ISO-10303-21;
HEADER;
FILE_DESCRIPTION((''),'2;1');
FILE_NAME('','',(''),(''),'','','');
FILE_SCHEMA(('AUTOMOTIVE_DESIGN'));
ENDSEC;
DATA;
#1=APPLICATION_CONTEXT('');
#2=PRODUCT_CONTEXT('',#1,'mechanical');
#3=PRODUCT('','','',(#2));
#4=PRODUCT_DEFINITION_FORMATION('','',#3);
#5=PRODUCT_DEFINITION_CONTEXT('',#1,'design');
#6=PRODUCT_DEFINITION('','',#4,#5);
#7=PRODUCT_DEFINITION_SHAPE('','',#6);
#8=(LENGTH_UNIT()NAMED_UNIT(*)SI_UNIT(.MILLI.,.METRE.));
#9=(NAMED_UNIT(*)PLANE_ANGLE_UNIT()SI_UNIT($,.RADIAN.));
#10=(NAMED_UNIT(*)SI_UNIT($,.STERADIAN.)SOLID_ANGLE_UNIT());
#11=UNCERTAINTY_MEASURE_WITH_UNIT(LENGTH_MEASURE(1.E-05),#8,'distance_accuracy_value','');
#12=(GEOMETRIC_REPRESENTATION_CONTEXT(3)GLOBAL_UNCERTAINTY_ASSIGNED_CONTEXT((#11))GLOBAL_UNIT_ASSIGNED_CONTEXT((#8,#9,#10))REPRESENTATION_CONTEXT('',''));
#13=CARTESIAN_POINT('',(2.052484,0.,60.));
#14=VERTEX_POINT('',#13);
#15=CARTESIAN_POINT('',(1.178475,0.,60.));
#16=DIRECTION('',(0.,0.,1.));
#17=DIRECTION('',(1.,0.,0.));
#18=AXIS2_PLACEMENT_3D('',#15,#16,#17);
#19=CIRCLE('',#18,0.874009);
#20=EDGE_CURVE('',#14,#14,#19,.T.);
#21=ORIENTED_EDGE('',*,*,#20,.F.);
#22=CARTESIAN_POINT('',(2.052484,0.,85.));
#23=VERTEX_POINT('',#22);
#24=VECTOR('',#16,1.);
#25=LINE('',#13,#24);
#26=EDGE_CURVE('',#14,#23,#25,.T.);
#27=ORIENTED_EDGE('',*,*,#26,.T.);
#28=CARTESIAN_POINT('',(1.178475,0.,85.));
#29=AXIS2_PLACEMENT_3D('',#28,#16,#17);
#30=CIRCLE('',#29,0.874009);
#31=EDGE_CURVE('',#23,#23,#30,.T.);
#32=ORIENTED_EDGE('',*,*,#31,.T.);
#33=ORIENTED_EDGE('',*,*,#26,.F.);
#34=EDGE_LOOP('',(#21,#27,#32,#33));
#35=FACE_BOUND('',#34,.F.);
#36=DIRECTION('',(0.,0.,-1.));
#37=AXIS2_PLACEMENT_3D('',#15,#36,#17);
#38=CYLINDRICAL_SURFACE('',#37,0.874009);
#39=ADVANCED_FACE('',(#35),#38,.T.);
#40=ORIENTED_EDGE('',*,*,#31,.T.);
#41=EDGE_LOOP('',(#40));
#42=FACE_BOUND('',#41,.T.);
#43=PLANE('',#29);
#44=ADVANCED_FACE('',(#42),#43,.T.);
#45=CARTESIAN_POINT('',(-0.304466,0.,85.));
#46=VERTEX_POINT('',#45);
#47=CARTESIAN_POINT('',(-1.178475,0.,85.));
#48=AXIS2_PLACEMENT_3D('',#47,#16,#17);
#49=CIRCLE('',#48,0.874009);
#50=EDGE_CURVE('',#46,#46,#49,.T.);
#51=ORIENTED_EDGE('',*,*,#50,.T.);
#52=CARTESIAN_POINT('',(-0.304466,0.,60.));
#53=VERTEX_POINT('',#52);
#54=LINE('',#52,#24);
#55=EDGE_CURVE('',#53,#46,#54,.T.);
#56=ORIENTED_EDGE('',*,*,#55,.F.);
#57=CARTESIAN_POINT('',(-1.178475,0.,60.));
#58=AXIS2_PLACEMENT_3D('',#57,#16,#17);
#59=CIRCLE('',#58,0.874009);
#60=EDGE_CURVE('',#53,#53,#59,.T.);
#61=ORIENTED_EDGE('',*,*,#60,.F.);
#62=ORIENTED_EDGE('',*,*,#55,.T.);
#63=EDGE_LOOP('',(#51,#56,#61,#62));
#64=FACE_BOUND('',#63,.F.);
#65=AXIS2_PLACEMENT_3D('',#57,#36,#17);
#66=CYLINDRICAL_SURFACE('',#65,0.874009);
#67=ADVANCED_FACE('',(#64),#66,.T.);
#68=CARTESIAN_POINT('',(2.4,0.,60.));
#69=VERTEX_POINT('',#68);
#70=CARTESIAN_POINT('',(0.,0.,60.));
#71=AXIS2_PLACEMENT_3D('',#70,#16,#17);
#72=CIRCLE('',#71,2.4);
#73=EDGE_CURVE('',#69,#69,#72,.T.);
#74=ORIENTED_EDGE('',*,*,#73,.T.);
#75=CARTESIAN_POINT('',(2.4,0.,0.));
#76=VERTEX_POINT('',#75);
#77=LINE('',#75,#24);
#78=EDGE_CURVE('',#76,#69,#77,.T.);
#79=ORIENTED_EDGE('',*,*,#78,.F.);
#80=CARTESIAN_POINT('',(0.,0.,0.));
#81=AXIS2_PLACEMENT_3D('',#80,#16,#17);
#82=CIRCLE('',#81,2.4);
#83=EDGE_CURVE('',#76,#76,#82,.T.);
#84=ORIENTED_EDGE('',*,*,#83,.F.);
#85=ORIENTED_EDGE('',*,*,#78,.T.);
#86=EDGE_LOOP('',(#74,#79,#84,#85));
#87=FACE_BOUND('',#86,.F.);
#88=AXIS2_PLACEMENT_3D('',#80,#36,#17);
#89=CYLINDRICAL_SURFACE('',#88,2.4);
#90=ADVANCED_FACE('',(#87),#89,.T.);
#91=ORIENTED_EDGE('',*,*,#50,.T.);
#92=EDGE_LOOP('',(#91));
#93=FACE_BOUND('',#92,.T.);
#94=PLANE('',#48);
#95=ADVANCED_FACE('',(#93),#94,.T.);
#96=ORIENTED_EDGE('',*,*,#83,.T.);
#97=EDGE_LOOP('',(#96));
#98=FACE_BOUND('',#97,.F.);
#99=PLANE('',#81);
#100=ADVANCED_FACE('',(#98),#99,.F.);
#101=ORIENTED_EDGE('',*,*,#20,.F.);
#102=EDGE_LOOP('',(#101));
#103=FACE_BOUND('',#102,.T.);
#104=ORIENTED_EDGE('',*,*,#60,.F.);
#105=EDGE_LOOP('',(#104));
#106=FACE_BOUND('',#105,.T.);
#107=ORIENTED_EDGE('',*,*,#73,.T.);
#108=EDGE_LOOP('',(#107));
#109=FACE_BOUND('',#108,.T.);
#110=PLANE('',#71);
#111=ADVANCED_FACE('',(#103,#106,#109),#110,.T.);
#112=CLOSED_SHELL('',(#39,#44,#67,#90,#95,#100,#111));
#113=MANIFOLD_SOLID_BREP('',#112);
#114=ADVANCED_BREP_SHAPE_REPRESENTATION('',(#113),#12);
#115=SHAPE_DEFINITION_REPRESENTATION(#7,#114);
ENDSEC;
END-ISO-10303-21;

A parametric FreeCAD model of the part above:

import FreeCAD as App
import Part
import Sketcher
from FreeCAD import Vector

doc = App.newDocument("Part")
body = doc.addObject("PartDesign::Body", "Body")

# Sketch on XY plane
sketch1 = body.newObject("Sketcher::SketchObject", "Sketch")
sketch1.AttachmentSupport = (doc.getObject("XY_Plane"), [""])
sketch1.MapMode = "FlatFace"
sketch1.addGeometry(Part.Circle(Vector(0, 0, 0), Vector(0, 0, 1), 2.4), False)
sketch1.addConstraint([
    Sketcher.Constraint("Coincident", 0, 3, -1, 1),
    Sketcher.Constraint("Diameter", 0, 4.8),
])
pad1 = body.newObject("PartDesign::Pad", "Pad")
pad1.Profile = sketch1
pad1.Length = 60

# Sketch on XY plane
sketch2 = body.newObject("Sketcher::SketchObject", "Sketch001")
sketch2.AttachmentSupport = (doc.getObject("XY_Plane"), [""])
sketch2.MapMode = "FlatFace"
sketch2.AttachmentOffset = App.Placement(Vector(0, 0, 60), App.Rotation())
sketch2.addGeometry([
    Part.Circle(Vector(-1.2, 0, 0), Vector(0, 0, 1), 0.9),
    Part.Circle(Vector(1.2, 0, 0), Vector(0, 0, 1), 0.9),
], False)
sketch2.addConstraint([
    Sketcher.Constraint("Equal", 0, 1),
    Sketcher.Constraint("Symmetric", 0, 3, 1, 3, -1, 1),
    Sketcher.Constraint("PointOnObject", 0, 3, -1),
    Sketcher.Constraint("Diameter", 0, 1.748018),
    Sketcher.Constraint("DistanceX", 0, 3, 1, 3, 2.35695),
])
pad2 = body.newObject("PartDesign::Pad", "Pad001")
pad2.Profile = sketch2
pad2.Length = 25

doc.recompute()
